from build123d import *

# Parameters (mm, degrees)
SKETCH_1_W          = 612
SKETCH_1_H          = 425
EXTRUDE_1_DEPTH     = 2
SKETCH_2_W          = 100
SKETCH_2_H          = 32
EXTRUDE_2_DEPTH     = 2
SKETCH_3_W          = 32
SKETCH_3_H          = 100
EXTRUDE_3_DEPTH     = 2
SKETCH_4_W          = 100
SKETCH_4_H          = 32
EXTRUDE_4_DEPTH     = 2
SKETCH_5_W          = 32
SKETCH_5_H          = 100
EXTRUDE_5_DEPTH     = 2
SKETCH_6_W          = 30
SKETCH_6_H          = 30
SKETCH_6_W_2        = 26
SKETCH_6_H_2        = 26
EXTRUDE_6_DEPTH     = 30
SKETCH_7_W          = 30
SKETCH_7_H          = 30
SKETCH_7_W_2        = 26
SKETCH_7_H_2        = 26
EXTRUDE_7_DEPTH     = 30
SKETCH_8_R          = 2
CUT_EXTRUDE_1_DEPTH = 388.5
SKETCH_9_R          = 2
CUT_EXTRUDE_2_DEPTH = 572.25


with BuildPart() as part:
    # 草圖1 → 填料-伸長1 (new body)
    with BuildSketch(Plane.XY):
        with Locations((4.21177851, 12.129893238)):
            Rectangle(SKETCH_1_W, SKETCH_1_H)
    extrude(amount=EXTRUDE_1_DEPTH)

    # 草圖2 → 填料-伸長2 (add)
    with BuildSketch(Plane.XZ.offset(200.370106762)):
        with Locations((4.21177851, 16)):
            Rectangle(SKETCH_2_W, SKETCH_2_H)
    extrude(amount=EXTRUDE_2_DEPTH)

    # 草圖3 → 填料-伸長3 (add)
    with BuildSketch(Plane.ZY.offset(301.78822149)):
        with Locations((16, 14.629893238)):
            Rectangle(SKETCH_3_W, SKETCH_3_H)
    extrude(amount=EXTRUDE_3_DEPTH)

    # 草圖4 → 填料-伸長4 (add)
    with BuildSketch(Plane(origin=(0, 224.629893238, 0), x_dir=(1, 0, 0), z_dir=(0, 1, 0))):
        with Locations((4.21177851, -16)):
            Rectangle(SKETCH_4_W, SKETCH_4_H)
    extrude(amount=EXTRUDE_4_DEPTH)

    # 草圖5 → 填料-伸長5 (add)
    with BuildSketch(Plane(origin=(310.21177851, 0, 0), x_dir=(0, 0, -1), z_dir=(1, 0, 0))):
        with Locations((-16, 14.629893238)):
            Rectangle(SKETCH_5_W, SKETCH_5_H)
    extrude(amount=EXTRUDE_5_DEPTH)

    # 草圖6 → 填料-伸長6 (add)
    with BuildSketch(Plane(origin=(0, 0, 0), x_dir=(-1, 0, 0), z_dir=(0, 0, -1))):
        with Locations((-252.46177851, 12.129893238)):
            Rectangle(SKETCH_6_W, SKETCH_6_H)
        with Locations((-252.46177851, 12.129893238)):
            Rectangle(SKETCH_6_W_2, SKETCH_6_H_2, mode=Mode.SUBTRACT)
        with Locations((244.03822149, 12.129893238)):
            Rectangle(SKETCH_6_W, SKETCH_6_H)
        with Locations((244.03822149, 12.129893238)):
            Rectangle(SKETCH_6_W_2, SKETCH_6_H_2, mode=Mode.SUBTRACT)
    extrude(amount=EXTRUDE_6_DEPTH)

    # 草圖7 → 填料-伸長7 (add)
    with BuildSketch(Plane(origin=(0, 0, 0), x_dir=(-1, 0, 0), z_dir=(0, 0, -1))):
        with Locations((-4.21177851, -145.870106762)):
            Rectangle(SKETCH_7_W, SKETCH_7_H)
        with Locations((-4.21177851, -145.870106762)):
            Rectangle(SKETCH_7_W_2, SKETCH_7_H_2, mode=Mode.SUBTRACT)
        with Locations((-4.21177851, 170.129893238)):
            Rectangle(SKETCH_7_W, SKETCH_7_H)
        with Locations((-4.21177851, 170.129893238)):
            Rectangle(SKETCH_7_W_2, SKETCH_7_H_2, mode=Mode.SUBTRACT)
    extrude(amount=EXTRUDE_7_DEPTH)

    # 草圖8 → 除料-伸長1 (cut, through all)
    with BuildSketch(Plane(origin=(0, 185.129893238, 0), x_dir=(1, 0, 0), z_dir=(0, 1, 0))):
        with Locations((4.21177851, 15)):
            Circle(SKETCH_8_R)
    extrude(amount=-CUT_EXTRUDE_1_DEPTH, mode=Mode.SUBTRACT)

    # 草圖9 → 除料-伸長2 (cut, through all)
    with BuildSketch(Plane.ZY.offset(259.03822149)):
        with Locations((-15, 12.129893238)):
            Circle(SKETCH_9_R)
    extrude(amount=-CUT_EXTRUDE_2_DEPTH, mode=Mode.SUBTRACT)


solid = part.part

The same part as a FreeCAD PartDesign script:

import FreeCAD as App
import Part
import Sketcher
from FreeCAD import Vector
Q = App.Units.Quantity


def add_polygon(sketch, points):
    """Adds a closed chain of lines whose ends are joined by coincident constraints."""
    first, n = sketch.GeometryCount, len(points)
    for a, b in zip(points, points[1:] + points[:1]):
        sketch.addGeometry(Part.LineSegment(App.Vector(*a, 0), App.Vector(*b, 0)), False)
    for i in range(n):
        sketch.addConstraint(Sketcher.Constraint("Coincident", first + i, 2, first + (i + 1) % n, 1))

doc = App.newDocument("Part")
body = doc.addObject("PartDesign::Body", "Body")

# Sketch on XY plane
sketch1 = body.newObject("Sketcher::SketchObject", "Sketch")
sketch1.AttachmentSupport = (doc.getObject("XY_Plane"), [""])
sketch1.MapMode = "FlatFace"
add_polygon(sketch1, [(-302, 225), (-302, -200), (310, -200), (310, 225)])  # lines 0-3
sketch1.addConstraint([
    Sketcher.Constraint("Vertical", 0),
    Sketcher.Constraint("Horizontal", 1),
    Sketcher.Constraint("Vertical", 2),
    Sketcher.Constraint("Horizontal", 3),
    Sketcher.Constraint("DistanceX", 1, 1, 1, 2, Q("612 mm")),
    Sketcher.Constraint("DistanceY", 0, 2, 0, 1, Q("425 mm")),
    Sketcher.Constraint("DistanceX", 0, 2, -1, 1, Q("301.788221 mm")),
    Sketcher.Constraint("DistanceY", 0, 2, -1, 1, Q("200.370107 mm")),
])
pad1 = body.newObject("PartDesign::Pad", "Pad")
pad1.Profile = sketch1
pad1.Length = 2

# Sketch on XZ plane
sketch2 = body.newObject("Sketcher::SketchObject", "Sketch001")
sketch2.AttachmentSupport = (doc.getObject("XZ_Plane"), [""])
sketch2.MapMode = "FlatFace"
sketch2.AttachmentOffset = App.Placement(Vector(0, 0, 200.370107), App.Rotation())
add_polygon(sketch2, [(-46, 32), (-46, 0), (54, 0), (54, 32)])  # lines 0-3
sketch2.addConstraint([
    Sketcher.Constraint("Vertical", 0),
    Sketcher.Constraint("Horizontal", 1),
    Sketcher.Constraint("Vertical", 2),
    Sketcher.Constraint("Horizontal", 3),
    Sketcher.Constraint("PointOnObject", 0, 2, -1),
    Sketcher.Constraint("DistanceX", 1, 1, 1, 2, Q("100 mm")),
    Sketcher.Constraint("DistanceY", 0, 2, 0, 1, Q("32 mm")),
    Sketcher.Constraint("DistanceX", 0, 2, -1, 1, Q("45.788221 mm")),
])
pad2 = body.newObject("PartDesign::Pad", "Pad001")
pad2.Profile = sketch2
pad2.Length = 2

# Sketch on YZ plane
sketch3 = body.newObject("Sketcher::SketchObject", "Sketch002")
sketch3.AttachmentSupport = (doc.getObject("YZ_Plane"), [""])
sketch3.MapMode = "FlatFace"
sketch3.AttachmentOffset = App.Placement(Vector(0, 0, -301.788221), App.Rotation())
add_polygon(sketch3, [(65, 0), (-35, 0), (-35, 32), (65, 32)])  # lines 0-3
sketch3.addConstraint([
    Sketcher.Constraint("Horizontal", 0),
    Sketcher.Constraint("Vertical", 1),
    Sketcher.Constraint("Horizontal", 2),
    Sketcher.Constraint("Vertical", 3),
    Sketcher.Constraint("PointOnObject", 0, 2, -1),
    Sketcher.Constraint("DistanceX", 0, 2, 0, 1, Q("100 mm")),
    Sketcher.Constraint("DistanceY", 1, 1, 1, 2, Q("32 mm")),
    Sketcher.Constraint("DistanceX", 0, 2, -1, 1, Q("35.370107 mm")),
])
pad3 = body.newObject("PartDesign::Pad", "Pad002")
pad3.Profile = sketch3
pad3.Length = 2
pad3.Reversed = True

# Sketch on XZ plane
sketch4 = body.newObject("Sketcher::SketchObject", "Sketch003")
sketch4.AttachmentSupport = (doc.getObject("XZ_Plane"), [""])
sketch4.MapMode = "FlatFace"
sketch4.AttachmentOffset = App.Placement(Vector(0, 0, -224.629893), App.Rotation())
add_polygon(sketch4, [(-46, 0), (-46, 32), (54, 32), (54, 0)])  # lines 0-3
sketch4.addConstraint([
    Sketcher.Constraint("Vertical", 0),
    Sketcher.Constraint("Horizontal", 1),
    Sketcher.Constraint("Vertical", 2),
    Sketcher.Constraint("Horizontal", 3),
    Sketcher.Constraint("PointOnObject", 2, 2, -1),
    Sketcher.Constraint("DistanceX", 1, 1, 1, 2, Q("100 mm")),
    Sketcher.Constraint("DistanceY", 0, 1, 0, 2, Q("32 mm")),
    Sketcher.Constraint("DistanceX", 0, 2, -1, 1, Q("45.788221 mm")),
])
pad4 = body.newObject("PartDesign::Pad", "Pad003")
pad4.Profile = sketch4
pad4.Length = 2
pad4.Reversed = True

# Sketch on YZ plane
sketch5 = body.newObject("Sketcher::SketchObject", "Sketch004")
sketch5.AttachmentSupport = (doc.getObject("YZ_Plane"), [""])
sketch5.MapMode = "FlatFace"
sketch5.AttachmentOffset = App.Placement(Vector(0, 0, 310.211779), App.Rotation())
add_polygon(sketch5, [(65, 32), (-35, 32), (-35, 0), (65, 0)])  # lines 0-3
sketch5.addConstraint([
    Sketcher.Constraint("Horizontal", 0),
    Sketcher.Constraint("Vertical", 1),
    Sketcher.Constraint("Horizontal", 2),
    Sketcher.Constraint("Vertical", 3),
    Sketcher.Constraint("PointOnObject", 1, 2, -1),
    Sketcher.Constraint("DistanceX", 0, 2, 0, 1, Q("100 mm")),
    Sketcher.Constraint("DistanceY", 1, 2, 1, 1, Q("32 mm")),
    Sketcher.Constraint("DistanceX", 0, 2, -1, 1, Q("35.370107 mm")),
])
pad5 = body.newObject("PartDesign::Pad", "Pad004")
pad5.Profile = sketch5
pad5.Length = 2

# Sketch on XY plane
sketch6 = body.newObject("Sketcher::SketchObject", "Sketch005")
sketch6.AttachmentSupport = (doc.getObject("XY_Plane"), [""])
sketch6.MapMode = "FlatFace"
add_polygon(sketch6, [(267, 27), (267, -3), (237, -3), (237, 27)])  # lines 0-3
add_polygon(sketch6, [(239, -1), (265, -1), (265, 25), (239, 25)])  # lines 4-7
add_polygon(sketch6, [(-229, 27), (-229, -3), (-259, -3), (-259, 27)])  # lines 8-11
add_polygon(sketch6, [(-257, -1), (-231, -1), (-231, 25), (-257, 25)])  # lines 12-15
sketch6.addConstraint([
    Sketcher.Constraint("Vertical", 0),
    Sketcher.Constraint("Horizontal", 1),
    Sketcher.Constraint("Vertical", 2),
    Sketcher.Constraint("Horizontal", 3),
    Sketcher.Constraint("Horizontal", 4),
    Sketcher.Constraint("Vertical", 5),
    Sketcher.Constraint("Horizontal", 6),
    Sketcher.Constraint("Vertical", 7),
    Sketcher.Constraint("Vertical", 8),
    Sketcher.Constraint("Horizontal", 9),
    Sketcher.Constraint("Vertical", 10),
    Sketcher.Constraint("Horizontal", 11),
    Sketcher.Constraint("Horizontal", 12),
    Sketcher.Constraint("Vertical", 13),
    Sketcher.Constraint("Horizontal", 14),
    Sketcher.Constraint("Vertical", 15),
    Sketcher.Constraint("Horizontal", 1, 2, 8, 2),
    Sketcher.Constraint("Horizontal", 3, 2, 10, 2),
    Sketcher.Constraint("Horizontal", 7, 2, 12, 2),
    Sketcher.Constraint("Horizontal", 6, 2, 13, 2),
    Sketcher.Constraint("Equal", 3, 9),
    Sketcher.Constraint("Equal", 6, 12),
    Sketcher.Constraint("Equal", 11, 0),
    Sketcher.Constraint("Equal", 14, 5),
    Sketcher.Constraint("DistanceX", 1, 2, 1, 1, Q("30 mm")),
    Sketcher.Constraint("DistanceX", 4, 1, 4, 2, Q("26 mm")),
    Sketcher.Constraint("DistanceX", 4, 2, 0, 2, Q("2 mm")),
    Sketcher.Constraint("DistanceY", 0, 2, 4, 2, Q("2 mm")),
    Sketcher.Constraint("DistanceX", 12, 2, 8, 2, Q("2 mm")),
    Sketcher.Constraint("DistanceX", 8, 2, 1, 2, Q("466.5 mm")),
    Sketcher.Constraint("DistanceX", -1, 1, 0, 2, Q("267.461779 mm")),
    Sketcher.Constraint("DistanceY", 0, 2, -1, 1, Q("2.870107 mm")),
])
pad6 = body.newObject("PartDesign::Pad", "Pad005")
pad6.Profile = sketch6
pad6.Length = 30
pad6.Reversed = True

# Sketch on XY plane
sketch7 = body.newObject("Sketcher::SketchObject", "Sketch006")
sketch7.AttachmentSupport = (doc.getObject("XY_Plane"), [""])
sketch7.MapMode = "FlatFace"
add_polygon(sketch7, [(19, -131), (19, -161), (-11, -161), (-11, -131)])  # lines 0-3
add_polygon(sketch7, [(-9, -159), (17, -159), (17, -133), (-9, -133)])  # lines 4-7
add_polygon(sketch7, [(19, 185), (19, 155), (-11, 155), (-11, 185)])  # lines 8-11
add_polygon(sketch7, [(-9, 157), (17, 157), (17, 183), (-9, 183)])  # lines 12-15
sketch7.addConstraint([
    Sketcher.Constraint("Vertical", 0),
    Sketcher.Constraint("Horizontal", 1),
    Sketcher.Constraint("Vertical", 2),
    Sketcher.Constraint("Horizontal", 3),
    Sketcher.Constraint("Horizontal", 4),
    Sketcher.Constraint("Vertical", 5),
    Sketcher.Constraint("Horizontal", 6),
    Sketcher.Constraint("Vertical", 7),
    Sketcher.Constraint("Vertical", 8),
    Sketcher.Constraint("Horizontal", 9),
    Sketcher.Constraint("Vertical", 10),
    Sketcher.Constraint("Horizontal", 11),
    Sketcher.Constraint("Horizontal", 12),
    Sketcher.Constraint("Vertical", 13),
    Sketcher.Constraint("Horizontal", 14),
    Sketcher.Constraint("Vertical", 15),
    Sketcher.Constraint("Vertical", 3, 2, 8, 2),
    Sketcher.Constraint("Vertical", 2, 2, 9, 2),
    Sketcher.Constraint("Vertical", 5, 2, 12, 2),
    Sketcher.Constraint("Vertical", 7, 2, 14, 2),
    Sketcher.Constraint("Equal", 11, 0),
    Sketcher.Constraint("Equal", 14, 5),
    Sketcher.Constraint("Equal", 2, 8),
    Sketcher.Constraint("Equal", 7, 13),
    Sketcher.Constraint("DistanceX", 1, 2, 1, 1, Q("30 mm")),
    Sketcher.Constraint("DistanceX", 4, 1, 4, 2, Q("26 mm")),
    Sketcher.Constraint("DistanceX", 4, 2, 0, 2, Q("2 mm")),
    Sketcher.Constraint("DistanceY", 0, 2, 4, 2, Q("2 mm")),
    Sketcher.Constraint("DistanceY", 3, 2, 8, 2, Q("286 mm")),
    Sketcher.Constraint("DistanceY", 8, 2, 12, 2, Q("2 mm")),
    Sketcher.Constraint("DistanceX", -1, 1, 0, 2, Q("19.211779 mm")),
    Sketcher.Constraint("DistanceY", 0, 2, -1, 1, Q("160.870107 mm")),
])
pad7 = body.newObject("PartDesign::Pad", "Pad006")
pad7.Profile = sketch7
pad7.Length = 30
pad7.Reversed = True

# Sketch on XZ plane
sketch8 = body.newObject("Sketcher::SketchObject", "Sketch007")
sketch8.AttachmentSupport = (doc.getObject("XZ_Plane"), [""])
sketch8.MapMode = "FlatFace"
sketch8.AttachmentOffset = App.Placement(Vector(0, 0, -185.129893), App.Rotation())
sketch8.addGeometry(Part.Circle(Vector(4.2, -15, 0), Vector(0, 0, 1), 2), False)
sketch8.addConstraint([
    Sketcher.Constraint("Diameter", 0, Q("4 mm")),
    Sketcher.Constraint("DistanceY", 0, 3, -1, 1, Q("15 mm")),
    Sketcher.Constraint("DistanceX", -1, 1, 0, 3, Q("4.211779 mm")),
])
pocket1 = body.newObject("PartDesign::Pocket", "Pocket")
pocket1.Profile = sketch8
pocket1.Type = "ThroughAll"
pocket1.Reversed = True

# Sketch on YZ plane
sketch9 = body.newObject("Sketcher::SketchObject", "Sketch008")
sketch9.AttachmentSupport = (doc.getObject("YZ_Plane"), [""])
sketch9.MapMode = "FlatFace"
sketch9.AttachmentOffset = App.Placement(Vector(0, 0, -259.038221), App.Rotation())
sketch9.addGeometry(Part.Circle(Vector(12.1, -15, 0), Vector(0, 0, 1), 2), False)
sketch9.addConstraint([
    Sketcher.Constraint("Diameter", 0, Q("4 mm")),
    Sketcher.Constraint("DistanceY", 0, 3, -1, 1, Q("15 mm")),
    Sketcher.Constraint("DistanceX", -1, 1, 0, 3, Q("12.129893 mm")),
])
pocket2 = body.newObject("PartDesign::Pocket", "Pocket001")
pocket2.Profile = sketch9
pocket2.Type = "ThroughAll"
pocket2.Reversed = True

doc.recompute()
